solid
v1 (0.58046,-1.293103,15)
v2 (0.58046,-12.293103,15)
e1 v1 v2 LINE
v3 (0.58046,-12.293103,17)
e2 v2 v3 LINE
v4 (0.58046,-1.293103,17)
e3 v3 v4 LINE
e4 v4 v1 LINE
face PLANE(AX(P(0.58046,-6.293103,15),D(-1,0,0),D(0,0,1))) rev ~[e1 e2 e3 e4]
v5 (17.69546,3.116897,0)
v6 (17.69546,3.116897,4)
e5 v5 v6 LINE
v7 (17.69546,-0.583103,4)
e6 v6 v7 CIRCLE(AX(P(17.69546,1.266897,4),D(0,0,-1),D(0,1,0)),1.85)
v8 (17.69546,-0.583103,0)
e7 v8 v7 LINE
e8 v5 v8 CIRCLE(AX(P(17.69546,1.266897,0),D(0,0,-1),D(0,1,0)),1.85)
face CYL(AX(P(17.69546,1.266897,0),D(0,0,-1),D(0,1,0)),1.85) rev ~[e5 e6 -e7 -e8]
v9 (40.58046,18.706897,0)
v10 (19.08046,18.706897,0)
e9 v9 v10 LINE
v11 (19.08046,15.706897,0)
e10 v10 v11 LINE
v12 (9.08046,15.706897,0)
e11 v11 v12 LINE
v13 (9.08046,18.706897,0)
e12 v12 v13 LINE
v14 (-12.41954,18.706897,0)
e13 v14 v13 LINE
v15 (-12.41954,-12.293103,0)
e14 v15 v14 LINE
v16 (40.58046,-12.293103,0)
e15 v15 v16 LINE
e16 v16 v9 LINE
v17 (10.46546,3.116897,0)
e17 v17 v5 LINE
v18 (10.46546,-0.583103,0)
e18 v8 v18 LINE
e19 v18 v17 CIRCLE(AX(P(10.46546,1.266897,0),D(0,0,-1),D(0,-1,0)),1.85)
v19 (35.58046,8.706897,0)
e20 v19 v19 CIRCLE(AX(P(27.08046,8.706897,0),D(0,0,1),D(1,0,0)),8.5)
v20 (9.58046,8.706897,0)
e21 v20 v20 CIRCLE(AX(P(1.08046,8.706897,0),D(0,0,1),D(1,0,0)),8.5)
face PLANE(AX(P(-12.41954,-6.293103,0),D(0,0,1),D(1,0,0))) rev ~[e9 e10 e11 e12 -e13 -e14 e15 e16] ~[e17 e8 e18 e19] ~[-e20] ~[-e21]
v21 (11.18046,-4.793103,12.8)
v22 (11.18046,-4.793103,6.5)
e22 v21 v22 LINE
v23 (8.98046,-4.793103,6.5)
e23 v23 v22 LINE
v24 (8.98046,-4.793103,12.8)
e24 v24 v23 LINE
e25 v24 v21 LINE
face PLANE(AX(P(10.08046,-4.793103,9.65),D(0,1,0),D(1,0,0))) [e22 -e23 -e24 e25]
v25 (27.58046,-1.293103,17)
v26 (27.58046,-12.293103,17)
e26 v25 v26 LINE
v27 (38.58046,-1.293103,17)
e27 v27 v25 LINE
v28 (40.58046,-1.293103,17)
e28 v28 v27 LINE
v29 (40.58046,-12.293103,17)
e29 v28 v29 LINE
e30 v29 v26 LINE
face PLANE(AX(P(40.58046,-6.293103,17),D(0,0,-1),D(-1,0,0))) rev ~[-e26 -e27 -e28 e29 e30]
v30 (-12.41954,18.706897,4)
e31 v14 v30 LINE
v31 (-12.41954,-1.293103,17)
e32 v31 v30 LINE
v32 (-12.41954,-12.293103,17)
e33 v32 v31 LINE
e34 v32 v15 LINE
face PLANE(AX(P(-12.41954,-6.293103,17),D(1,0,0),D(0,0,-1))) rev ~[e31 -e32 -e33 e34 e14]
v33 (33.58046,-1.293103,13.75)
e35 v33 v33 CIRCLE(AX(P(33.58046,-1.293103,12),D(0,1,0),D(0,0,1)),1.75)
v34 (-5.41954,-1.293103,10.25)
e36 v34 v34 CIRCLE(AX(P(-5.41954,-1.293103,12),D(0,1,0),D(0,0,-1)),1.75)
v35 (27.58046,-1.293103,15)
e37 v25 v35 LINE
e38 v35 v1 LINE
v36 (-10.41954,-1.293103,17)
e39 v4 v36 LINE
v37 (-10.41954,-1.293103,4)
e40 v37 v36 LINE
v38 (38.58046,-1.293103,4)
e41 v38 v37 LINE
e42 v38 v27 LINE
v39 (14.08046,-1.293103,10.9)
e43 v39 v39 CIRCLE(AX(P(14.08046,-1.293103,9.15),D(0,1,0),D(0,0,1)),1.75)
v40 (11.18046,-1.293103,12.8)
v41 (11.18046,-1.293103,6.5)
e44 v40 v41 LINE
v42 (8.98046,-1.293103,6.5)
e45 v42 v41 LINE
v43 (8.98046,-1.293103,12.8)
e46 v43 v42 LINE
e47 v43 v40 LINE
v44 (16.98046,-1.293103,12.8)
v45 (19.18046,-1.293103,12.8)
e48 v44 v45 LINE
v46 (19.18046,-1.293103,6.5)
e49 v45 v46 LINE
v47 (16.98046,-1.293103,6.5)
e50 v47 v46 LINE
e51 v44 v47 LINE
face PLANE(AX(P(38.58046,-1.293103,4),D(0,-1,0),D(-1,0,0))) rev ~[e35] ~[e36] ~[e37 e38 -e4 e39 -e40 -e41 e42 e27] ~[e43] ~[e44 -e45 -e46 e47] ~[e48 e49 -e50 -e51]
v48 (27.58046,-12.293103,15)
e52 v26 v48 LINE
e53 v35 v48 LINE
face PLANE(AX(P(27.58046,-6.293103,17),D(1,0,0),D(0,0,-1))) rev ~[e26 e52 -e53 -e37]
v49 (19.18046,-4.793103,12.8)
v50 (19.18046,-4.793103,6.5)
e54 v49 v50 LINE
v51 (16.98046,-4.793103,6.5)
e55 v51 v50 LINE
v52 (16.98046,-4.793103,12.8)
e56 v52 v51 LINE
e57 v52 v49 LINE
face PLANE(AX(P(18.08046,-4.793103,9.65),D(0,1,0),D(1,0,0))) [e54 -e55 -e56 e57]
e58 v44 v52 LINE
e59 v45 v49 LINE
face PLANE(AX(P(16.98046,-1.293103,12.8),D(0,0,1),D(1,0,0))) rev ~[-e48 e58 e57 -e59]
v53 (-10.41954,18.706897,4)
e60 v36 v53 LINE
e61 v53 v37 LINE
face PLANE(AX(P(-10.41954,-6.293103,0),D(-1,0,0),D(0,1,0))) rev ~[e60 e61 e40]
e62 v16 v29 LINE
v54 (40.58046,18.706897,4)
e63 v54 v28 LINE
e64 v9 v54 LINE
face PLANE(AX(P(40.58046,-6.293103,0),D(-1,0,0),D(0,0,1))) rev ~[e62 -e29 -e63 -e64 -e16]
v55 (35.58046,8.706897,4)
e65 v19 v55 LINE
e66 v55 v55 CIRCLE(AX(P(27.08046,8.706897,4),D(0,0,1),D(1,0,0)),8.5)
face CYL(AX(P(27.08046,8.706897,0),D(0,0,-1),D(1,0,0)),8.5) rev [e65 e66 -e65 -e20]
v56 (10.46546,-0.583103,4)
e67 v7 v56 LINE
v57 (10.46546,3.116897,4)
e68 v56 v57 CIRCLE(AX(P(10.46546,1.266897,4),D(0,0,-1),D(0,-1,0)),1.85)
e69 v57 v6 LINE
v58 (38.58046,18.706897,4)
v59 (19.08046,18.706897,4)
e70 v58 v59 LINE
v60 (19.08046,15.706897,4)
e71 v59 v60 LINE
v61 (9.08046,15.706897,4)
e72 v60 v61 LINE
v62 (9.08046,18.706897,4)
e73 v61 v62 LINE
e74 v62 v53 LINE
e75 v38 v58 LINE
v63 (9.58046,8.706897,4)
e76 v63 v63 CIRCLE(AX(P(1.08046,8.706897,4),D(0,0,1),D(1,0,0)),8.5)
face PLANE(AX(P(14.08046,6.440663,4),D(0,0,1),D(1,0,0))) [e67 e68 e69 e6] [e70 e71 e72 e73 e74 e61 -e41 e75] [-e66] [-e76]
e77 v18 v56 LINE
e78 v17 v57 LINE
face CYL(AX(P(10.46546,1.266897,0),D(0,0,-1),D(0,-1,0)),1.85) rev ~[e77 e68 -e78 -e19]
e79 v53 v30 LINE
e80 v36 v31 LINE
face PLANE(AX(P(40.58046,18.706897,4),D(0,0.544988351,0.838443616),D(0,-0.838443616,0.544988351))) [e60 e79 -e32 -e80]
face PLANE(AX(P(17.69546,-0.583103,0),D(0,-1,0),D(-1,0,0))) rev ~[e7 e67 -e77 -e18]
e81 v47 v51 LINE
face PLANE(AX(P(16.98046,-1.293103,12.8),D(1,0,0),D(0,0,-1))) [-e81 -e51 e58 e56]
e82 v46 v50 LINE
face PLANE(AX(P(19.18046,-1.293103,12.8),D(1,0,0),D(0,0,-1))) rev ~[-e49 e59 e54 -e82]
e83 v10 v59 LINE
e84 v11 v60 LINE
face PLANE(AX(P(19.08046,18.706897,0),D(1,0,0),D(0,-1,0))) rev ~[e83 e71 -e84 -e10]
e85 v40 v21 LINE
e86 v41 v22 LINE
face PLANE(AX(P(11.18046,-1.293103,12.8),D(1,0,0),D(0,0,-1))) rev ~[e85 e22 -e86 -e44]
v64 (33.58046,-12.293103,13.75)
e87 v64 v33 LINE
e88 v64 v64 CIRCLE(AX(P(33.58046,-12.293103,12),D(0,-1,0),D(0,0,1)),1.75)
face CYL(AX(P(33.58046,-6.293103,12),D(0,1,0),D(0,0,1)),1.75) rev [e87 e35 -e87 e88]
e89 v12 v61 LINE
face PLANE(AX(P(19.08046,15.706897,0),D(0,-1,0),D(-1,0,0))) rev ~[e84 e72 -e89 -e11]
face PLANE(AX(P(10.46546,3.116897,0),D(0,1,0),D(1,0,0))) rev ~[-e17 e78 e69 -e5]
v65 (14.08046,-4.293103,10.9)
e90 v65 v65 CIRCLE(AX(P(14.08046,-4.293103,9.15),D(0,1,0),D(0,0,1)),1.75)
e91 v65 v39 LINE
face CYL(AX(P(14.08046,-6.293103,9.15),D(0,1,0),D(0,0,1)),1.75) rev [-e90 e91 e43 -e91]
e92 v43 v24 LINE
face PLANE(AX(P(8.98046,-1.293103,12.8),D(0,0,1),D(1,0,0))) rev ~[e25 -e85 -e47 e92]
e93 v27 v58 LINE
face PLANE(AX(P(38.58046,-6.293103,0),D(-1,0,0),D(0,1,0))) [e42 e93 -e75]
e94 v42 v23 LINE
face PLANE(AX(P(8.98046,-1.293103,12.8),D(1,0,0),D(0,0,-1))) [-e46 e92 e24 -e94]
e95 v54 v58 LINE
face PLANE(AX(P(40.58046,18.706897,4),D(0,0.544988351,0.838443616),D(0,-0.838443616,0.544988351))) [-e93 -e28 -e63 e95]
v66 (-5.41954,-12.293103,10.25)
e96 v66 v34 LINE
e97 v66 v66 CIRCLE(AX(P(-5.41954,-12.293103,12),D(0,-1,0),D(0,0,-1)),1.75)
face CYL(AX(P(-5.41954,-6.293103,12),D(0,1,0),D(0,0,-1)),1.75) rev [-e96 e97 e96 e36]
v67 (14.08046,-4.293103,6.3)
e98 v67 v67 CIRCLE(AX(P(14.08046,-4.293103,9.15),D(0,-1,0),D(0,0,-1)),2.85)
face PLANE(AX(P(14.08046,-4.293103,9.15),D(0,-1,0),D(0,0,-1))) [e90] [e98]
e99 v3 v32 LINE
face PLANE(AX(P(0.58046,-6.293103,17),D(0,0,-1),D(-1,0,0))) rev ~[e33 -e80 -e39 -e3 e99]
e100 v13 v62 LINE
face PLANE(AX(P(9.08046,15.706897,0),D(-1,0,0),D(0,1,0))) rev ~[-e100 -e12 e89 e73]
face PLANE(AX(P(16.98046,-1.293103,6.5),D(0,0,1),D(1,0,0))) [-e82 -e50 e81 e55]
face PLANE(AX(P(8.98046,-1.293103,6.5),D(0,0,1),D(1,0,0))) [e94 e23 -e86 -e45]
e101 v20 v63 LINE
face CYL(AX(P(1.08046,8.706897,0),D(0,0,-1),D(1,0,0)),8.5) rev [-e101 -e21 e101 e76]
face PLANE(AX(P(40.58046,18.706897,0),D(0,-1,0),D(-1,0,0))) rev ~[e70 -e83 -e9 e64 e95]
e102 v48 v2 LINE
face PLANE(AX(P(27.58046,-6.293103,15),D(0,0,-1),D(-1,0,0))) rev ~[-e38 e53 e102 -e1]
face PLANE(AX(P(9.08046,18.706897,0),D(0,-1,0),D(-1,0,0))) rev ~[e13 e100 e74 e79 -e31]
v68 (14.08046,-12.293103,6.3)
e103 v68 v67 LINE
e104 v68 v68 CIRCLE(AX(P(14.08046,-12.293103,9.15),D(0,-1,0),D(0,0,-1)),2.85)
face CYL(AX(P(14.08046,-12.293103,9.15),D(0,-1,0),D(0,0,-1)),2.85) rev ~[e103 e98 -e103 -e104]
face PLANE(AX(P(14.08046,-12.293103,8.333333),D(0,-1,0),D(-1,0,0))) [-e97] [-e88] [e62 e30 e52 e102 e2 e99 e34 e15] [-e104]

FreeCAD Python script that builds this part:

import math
import FreeCAD as App
import Part
import Sketcher


def add_polygon(sketch, points):
    """Adds a closed chain of lines whose ends are joined by coincident constraints."""
    first, n = sketch.GeometryCount, len(points)
    for a, b in zip(points, points[1:] + points[:1]):
        sketch.addGeometry(Part.LineSegment(App.Vector(*a, 0), App.Vector(*b, 0)), False)
    for i in range(n):
        sketch.addConstraint(Sketcher.Constraint("Coincident", first + i, 2, first + (i + 1) % n, 1))

doc = App.newDocument("Part")
body = doc.addObject("PartDesign::Body", "Body")

# Sketch on XY plane
sketch1 = doc.addObject("Sketcher::SketchObject", "Sketch")
body.addObject(sketch1)
sketch1.AttachmentSupport = (doc.XY_Plane, [""])
sketch1.MapMode = "FlatFace"
add_polygon(sketch1, [(-10.4, 18.7), (-10.4, -6.3), (38.6, -6.3), (38.6, 18.7), (19.1, 18.7), (19.1, 15.7), (9.1, 15.7), (9.1, 18.7)])  # lines 0-7
sketch1.addGeometry(Part.LineSegment(App.Vector(17.7, -0.6, 0), App.Vector(10.5, -0.6, 0)), False)  # 8
sketch1.addGeometry(Part.ArcOfCircle(Part.Circle(App.Vector(10.5, 1.3, 0), App.Vector(0, 0, 1), 1.9), math.radians(90), math.radians(270)), False)  # 9
sketch1.addGeometry(Part.LineSegment(App.Vector(10.5, 3.1, 0), App.Vector(17.7, 3.1, 0)), False)  # 10
sketch1.addGeometry(Part.ArcOfCircle(Part.Circle(App.Vector(17.7, 1.3, 0), App.Vector(0, 0, 1), 1.9), math.radians(-90), math.radians(90)), False)  # 11
sketch1.addGeometry(Part.Circle(App.Vector(1.1, 8.7, 0), App.Vector(0, 0, 1), 8.5), False)  # 12
sketch1.addGeometry(Part.Circle(App.Vector(27.1, 8.7, 0), App.Vector(0, 0, 1), 8.5), False)  # 13
sketch1.addConstraint([
    Sketcher.Constraint("Tangent", 8, 2, 9, 2),
    Sketcher.Constraint("Tangent", 9, 1, 10, 1),
    Sketcher.Constraint("Tangent", 10, 2, 11, 2),
    Sketcher.Constraint("Tangent", 11, 1, 8, 1),
    Sketcher.Constraint("Vertical", 0),
    Sketcher.Constraint("Horizontal", 1),
    Sketcher.Constraint("Vertical", 2),
    Sketcher.Constraint("Horizontal", 3),
    Sketcher.Constraint("Vertical", 4),
    Sketcher.Constraint("Horizontal", 5),
    Sketcher.Constraint("Vertical", 6),
    Sketcher.Constraint("Horizontal", 7),
    Sketcher.Constraint("Horizontal", 8),
    Sketcher.Constraint("Horizontal", 10),
    Sketcher.Constraint("Equal", 12, 13),
    Sketcher.Constraint("Horizontal", 12, 3, 13, 3),
    Sketcher.Constraint("Horizontal", 3, 2, 6, 2),
    Sketcher.Constraint("Equal", 3, 7),
    Sketcher.Constraint("Diameter", 12, 17.0),
    Sketcher.Constraint("DistanceX", 1, 1, 1, 2, 49.0),
    Sketcher.Constraint("DistanceX", 5, 2, 5, 1, 10.0),
    Sketcher.Constraint("DistanceY", 0, 2, 0, 1, 25.0),
    Sketcher.Constraint("DistanceY", 4, 2, 4, 1, 3.0),
    Sketcher.Constraint("Radius", 9, 1.85),
    Sketcher.Constraint("DistanceX", 12, 3, 13, 3, 26.0),
    Sketcher.Constraint("DistanceY", 0, 2, 12, 3, 15.0),
    Sketcher.Constraint("DistanceX", 3, 2, 13, 3, 8.0),
    Sketcher.Constraint("DistanceX", 8, 2, 8, 1, 7.23),
    Sketcher.Constraint("DistanceY", 9, 3, 12, 3, 7.44),
    Sketcher.Constraint("DistanceX", 12, 3, 9, 3, 9.385),
    Sketcher.Constraint("DistanceX", -1, 1, 9, 3, 10.46546),
    Sketcher.Constraint("DistanceY", -1, 1, 9, 3, 1.266897),
])
pad1 = doc.addObject("PartDesign::Pad", "Pad")
body.addObject(pad1)
pad1.Profile = sketch1
pad1.Length = 4

# Sketch on XY plane
sketch2 = doc.addObject("Sketcher::SketchObject", "Sketch001")
body.addObject(sketch2)
sketch2.AttachmentSupport = (doc.XY_Plane, [""])
sketch2.MapMode = "FlatFace"
sketch2.AttachmentOffset = App.Placement(App.Vector(0, 0, 4), App.Rotation())
add_polygon(sketch2, [(39, -1), (-10, -1), (-10, -6), (39, -6)])  # lines 0-3
sketch2.addConstraint([
    Sketcher.Constraint("Horizontal", 0),
    Sketcher.Constraint("Vertical", 1),
    Sketcher.Constraint("Horizontal", 2),
    Sketcher.Constraint("Vertical", 3),
    Sketcher.Constraint("DistanceX", 0, 2, 0, 1, 49.0),
    Sketcher.Constraint("DistanceY", 1, 2, 1, 1, 5.0),
    Sketcher.Constraint("DistanceX", 0, 2, -1, 1, 10.41954),
    Sketcher.Constraint("DistanceY", 0, 2, -1, 1, 1.293103),
])
pad2 = doc.addObject("PartDesign::Pad", "Pad001")
body.addObject(pad2)
pad2.Profile = sketch2
pad2.Length = 13

# Sketch on XZ plane
sketch3 = doc.addObject("Sketcher::SketchObject", "Sketch002")
body.addObject(sketch3)
sketch3.AttachmentSupport = (doc.XZ_Plane, [""])
sketch3.MapMode = "FlatFace"
sketch3.AttachmentOffset = App.Placement(App.Vector(0, 0, 1.293103), App.Rotation())
add_polygon(sketch3, [(9, 6.5), (9, 12.8), (11.2, 12.8), (11.2, 6.5)])  # lines 0-3
add_polygon(sketch3, [(17, 6.5), (17, 12.8), (19.2, 12.8), (19.2, 6.5)])  # lines 4-7
sketch3.addConstraint([
    Sketcher.Constraint("Vertical", 0),
    Sketcher.Constraint("Horizontal", 1),
    Sketcher.Constraint("Vertical", 2),
    Sketcher.Constraint("Horizontal", 3),
    Sketcher.Constraint("Vertical", 4),
    Sketcher.Constraint("Horizontal", 5),
    Sketcher.Constraint("Vertical", 6),
    Sketcher.Constraint("Horizontal", 7),
    Sketcher.Constraint("Horizontal", 1, 2, 4, 2),
    Sketcher.Constraint("Horizontal", 3, 2, 6, 2),
    Sketcher.Constraint("Equal", 3, 5),
    Sketcher.Constraint("DistanceX", 1, 1, 1, 2, 2.2),
    Sketcher.Constraint("DistanceY", 0, 1, 0, 2, 6.3),
    Sketcher.Constraint("DistanceX", 0, 2, 4, 2, 8.0),
    Sketcher.Constraint("DistanceY", -1, 1, 0, 2, 12.8),
    Sketcher.Constraint("DistanceX", -1, 1, 0, 2, 8.98046),
])
pocket1 = doc.addObject("PartDesign::Pocket", "Pocket")
body.addObject(pocket1)
pocket1.Profile = sketch3
pocket1.Length = 3.5
pocket1.Reversed = True

# Sketch on XZ plane
sketch4 = doc.addObject("Sketcher::SketchObject", "Sketch003")
body.addObject(sketch4)
sketch4.AttachmentSupport = (doc.XZ_Plane, [""])
sketch4.MapMode = "FlatFace"
sketch4.AttachmentOffset = App.Placement(App.Vector(0, 0, 1.293103), App.Rotation())
sketch4.addGeometry([
    Part.Circle(App.Vector(14.1, 9.2, 0), App.Vector(0, 0, 1), 1.8),
    Part.Circle(App.Vector(33.6, 12, 0), App.Vector(0, 0, 1), 1.8),
    Part.Circle(App.Vector(-5.4, 12, 0), App.Vector(0, 0, 1), 1.8),
], False)
sketch4.addConstraint([
    Sketcher.Constraint("Equal", 0, 1),
    Sketcher.Constraint("Equal", 1, 2),
    Sketcher.Constraint("Horizontal", 1, 3, 2, 3),
    Sketcher.Constraint("Diameter", 0, 3.5),
    Sketcher.Constraint("DistanceY", -1, 1, 1, 3, 12.0),
    Sketcher.Constraint("DistanceX", 2, 3, 1, 3, 39.0),
    Sketcher.Constraint("DistanceX", 0, 3, 1, 3, 19.5),
    Sketcher.Constraint("DistanceY", -1, 1, 0, 3, 9.15),
    Sketcher.Constraint("DistanceX", -1, 1, 0, 3, 14.08046),
])
pocket2 = doc.addObject("PartDesign::Pocket", "Pocket001")
body.addObject(pocket2)
pocket2.Profile = sketch4
pocket2.Type = "ThroughAll"
pocket2.Reversed = True

# Sketch on XZ plane
sketch5 = doc.addObject("Sketcher::SketchObject", "Sketch004")
body.addObject(sketch5)
sketch5.AttachmentSupport = (doc.XZ_Plane, [""])
sketch5.MapMode = "FlatFace"
sketch5.AttachmentOffset = App.Placement(App.Vector(0, 0, 1.293103), App.Rotation())
add_polygon(sketch5, [(0.6, 15), (0.6, 17), (27.6, 17), (27.6, 15)])  # lines 0-3
sketch5.addConstraint([
    Sketcher.Constraint("Vertical", 0),
    Sketcher.Constraint("Horizontal", 1),
    Sketcher.Constraint("Vertical", 2),
    Sketcher.Constraint("Horizontal", 3),
    Sketcher.Constraint("DistanceX", 1, 1, 1, 2, 27.0),
    Sketcher.Constraint("DistanceY", 0, 1, 0, 2, 2.0),
    Sketcher.Constraint("DistanceY", -1, 1, 0, 2, 17.0),
    Sketcher.Constraint("DistanceX", -1, 1, 0, 2, 0.58046),
])
pocket3 = doc.addObject("PartDesign::Pocket", "Pocket002")
body.addObject(pocket3)
pocket3.Profile = sketch5
pocket3.Type = "ThroughAll"
pocket3.Reversed = True

# Sketch on XY plane
sketch6 = doc.addObject("Sketcher::SketchObject", "Sketch005")
body.addObject(sketch6)
sketch6.AttachmentSupport = (doc.XY_Plane, [""])
sketch6.MapMode = "FlatFace"
add_polygon(sketch6, [(40.6, 18.7), (40.6, -6.3), (38.6, -6.3), (38.6, 18.7)])  # lines 0-3
add_polygon(sketch6, [(-10.4, 18.7), (-10.4, -6.3), (-12.4, -6.3), (-12.4, 18.7)])  # lines 4-7
sketch6.addConstraint([
    Sketcher.Constraint("Vertical", 0),
    Sketcher.Constraint("Horizontal", 1),
    Sketcher.Constraint("Vertical", 2),
    Sketcher.Constraint("Horizontal", 3),
    Sketcher.Constraint("Vertical", 4),
    Sketcher.Constraint("Horizontal", 5),
    Sketcher.Constraint("Vertical", 6),
    Sketcher.Constraint("Horizontal", 7),
    Sketcher.Constraint("Horizontal", 1, 2, 4, 2),
    Sketcher.Constraint("Horizontal", 3, 2, 6, 2),
    Sketcher.Constraint("Equal", 3, 5),
    Sketcher.Constraint("DistanceX", 1, 2, 1, 1, 2.0),
    Sketcher.Constraint("DistanceY", 0, 2, 0, 1, 25.0),
    Sketcher.Constraint("DistanceX", 4, 2, 1, 2, 49.0),
    Sketcher.Constraint("DistanceX", -1, 1, 0, 2, 40.58046),
    Sketcher.Constraint("DistanceY", 0, 2, -1, 1, 6.293103),
])
pad3 = doc.addObject("PartDesign::Pad", "Pad002")
body.addObject(pad3)
pad3.Profile = sketch6
pad3.Length = 17

# Sketch on YZ plane
sketch7 = doc.addObject("Sketcher::SketchObject", "Sketch006")
body.addObject(sketch7)
sketch7.AttachmentSupport = (doc.YZ_Plane, [""])
sketch7.MapMode = "FlatFace"
sketch7.AttachmentOffset = App.Placement(App.Vector(0, 0, 40.58046), App.Rotation())
add_polygon(sketch7, [(-1, 17), (19, 4), (19, 17)])  # lines 0-2
sketch7.addConstraint([
    Sketcher.Constraint("Vertical", 1),
    Sketcher.Constraint("Horizontal", 2),
    Sketcher.Constraint("DistanceX", 2, 2, 2, 1, 20.0),
    Sketcher.Constraint("DistanceY", 1, 1, 1, 2, 13.0),
    Sketcher.Constraint("DistanceY", -1, 1, 0, 2, 4.0),
    Sketcher.Constraint("DistanceX", -1, 1, 0, 2, 18.706897),
])
pocket4 = doc.addObject("PartDesign::Pocket", "Pocket003")
body.addObject(pocket4)
pocket4.Profile = sketch7
pocket4.Length = 72

# Sketch on XZ plane
sketch8 = doc.addObject("Sketcher::SketchObject", "Sketch007")
body.addObject(sketch8)
sketch8.AttachmentSupport = (doc.XZ_Plane, [""])
sketch8.MapMode = "FlatFace"
sketch8.AttachmentOffset = App.Placement(App.Vector(0, 0, 6.293103), App.Rotation())
add_polygon(sketch8, [(40.6, 0), (40.6, 17), (27.6, 17), (27.6, 15), (0.6, 15), (0.6, 17), (-12.4, 17), (-12.4, 0)])  # lines 0-7
sketch8.addGeometry(Part.Circle(App.Vector(33.6, 12, 0), App.Vector(0, 0, 1), 1.8), False)  # 8
sketch8.addGeometry(Part.Circle(App.Vector(-5.4, 12, 0), App.Vector(0, 0, 1), 1.8), False)  # 9
sketch8.addGeometry(Part.Circle(App.Vector(14.1, 9.2, 0), App.Vector(0, 0, 1), 1.8), False)  # 10
sketch8.addConstraint([
    Sketcher.Constraint("Vertical", 0),
    Sketcher.Constraint("Horizontal", 1),
    Sketcher.Constraint("Vertical", 2),
    Sketcher.Constraint("Horizontal", 3),
    Sketcher.Constraint("Vertical", 4),
    Sketcher.Constraint("Horizontal", 5),
    Sketcher.Constraint("Vertical", 6),
    Sketcher.Constraint("Horizontal", 7),
    Sketcher.Constraint("Equal", 8, 9),
    Sketcher.Constraint("Equal", 9, 10),
    Sketcher.Constraint("PointOnObject", 6, 2, -1),
    Sketcher.Constraint("Horizontal", 8, 3, 9, 3),
    Sketcher.Constraint("Horizontal", 1, 2, 4, 2),
    Sketcher.Constraint("Equal", 1, 5),
    Sketcher.Constraint("Diameter", 8, 3.5),
    Sketcher.Constraint("DistanceX", 1, 2, 1, 1, 13.0),
    Sketcher.Constraint("DistanceX", 3, 2, 3, 1, 27.0),
    Sketcher.Constraint("DistanceY", 0, 1, 0, 2, 17.0),
    Sketcher.Constraint("DistanceY", 2, 2, 2, 1, 2.0),
    Sketcher.Constraint("DistanceY", -1, 1, 8, 3, 12.0),
    Sketcher.Constraint("DistanceX", 9, 3, 8, 3, 39.0),
    Sketcher.Constraint("DistanceX", 8, 3, 0, 2, 7.0),
    Sketcher.Constraint("DistanceX", 10, 3, 8, 3, 19.5),
    Sketcher.Constraint("DistanceY", -1, 1, 10, 3, 9.15),
    Sketcher.Constraint("DistanceX", -1, 1, 8, 3, 33.58046),
])
pad4 = doc.addObject("PartDesign::Pad", "Pad003")
body.addObject(pad4)
pad4.Profile = sketch8
pad4.Length = 6

# Sketch on XZ plane
sketch9 = doc.addObject("Sketcher::SketchObject", "Sketch008")
body.addObject(sketch9)
sketch9.AttachmentSupport = (doc.XZ_Plane, [""])
sketch9.MapMode = "FlatFace"
sketch9.AttachmentOffset = App.Placement(App.Vector(0, 0, 12.293103), App.Rotation())
sketch9.addGeometry(Part.Circle(App.Vector(14.1, 9.2, 0), App.Vector(0, 0, 1), 2.9), False)
sketch9.addConstraint([
    Sketcher.Constraint("Diameter", 0, 5.7),
    Sketcher.Constraint("DistanceY", -1, 1, 0, 3, 9.15),
    Sketcher.Constraint("DistanceX", -1, 1, 0, 3, 14.08046),
])
pocket5 = doc.addObject("PartDesign::Pocket", "Pocket004")
body.addObject(pocket5)
pocket5.Profile = sketch9
pocket5.Length = 8

doc.recompute()
